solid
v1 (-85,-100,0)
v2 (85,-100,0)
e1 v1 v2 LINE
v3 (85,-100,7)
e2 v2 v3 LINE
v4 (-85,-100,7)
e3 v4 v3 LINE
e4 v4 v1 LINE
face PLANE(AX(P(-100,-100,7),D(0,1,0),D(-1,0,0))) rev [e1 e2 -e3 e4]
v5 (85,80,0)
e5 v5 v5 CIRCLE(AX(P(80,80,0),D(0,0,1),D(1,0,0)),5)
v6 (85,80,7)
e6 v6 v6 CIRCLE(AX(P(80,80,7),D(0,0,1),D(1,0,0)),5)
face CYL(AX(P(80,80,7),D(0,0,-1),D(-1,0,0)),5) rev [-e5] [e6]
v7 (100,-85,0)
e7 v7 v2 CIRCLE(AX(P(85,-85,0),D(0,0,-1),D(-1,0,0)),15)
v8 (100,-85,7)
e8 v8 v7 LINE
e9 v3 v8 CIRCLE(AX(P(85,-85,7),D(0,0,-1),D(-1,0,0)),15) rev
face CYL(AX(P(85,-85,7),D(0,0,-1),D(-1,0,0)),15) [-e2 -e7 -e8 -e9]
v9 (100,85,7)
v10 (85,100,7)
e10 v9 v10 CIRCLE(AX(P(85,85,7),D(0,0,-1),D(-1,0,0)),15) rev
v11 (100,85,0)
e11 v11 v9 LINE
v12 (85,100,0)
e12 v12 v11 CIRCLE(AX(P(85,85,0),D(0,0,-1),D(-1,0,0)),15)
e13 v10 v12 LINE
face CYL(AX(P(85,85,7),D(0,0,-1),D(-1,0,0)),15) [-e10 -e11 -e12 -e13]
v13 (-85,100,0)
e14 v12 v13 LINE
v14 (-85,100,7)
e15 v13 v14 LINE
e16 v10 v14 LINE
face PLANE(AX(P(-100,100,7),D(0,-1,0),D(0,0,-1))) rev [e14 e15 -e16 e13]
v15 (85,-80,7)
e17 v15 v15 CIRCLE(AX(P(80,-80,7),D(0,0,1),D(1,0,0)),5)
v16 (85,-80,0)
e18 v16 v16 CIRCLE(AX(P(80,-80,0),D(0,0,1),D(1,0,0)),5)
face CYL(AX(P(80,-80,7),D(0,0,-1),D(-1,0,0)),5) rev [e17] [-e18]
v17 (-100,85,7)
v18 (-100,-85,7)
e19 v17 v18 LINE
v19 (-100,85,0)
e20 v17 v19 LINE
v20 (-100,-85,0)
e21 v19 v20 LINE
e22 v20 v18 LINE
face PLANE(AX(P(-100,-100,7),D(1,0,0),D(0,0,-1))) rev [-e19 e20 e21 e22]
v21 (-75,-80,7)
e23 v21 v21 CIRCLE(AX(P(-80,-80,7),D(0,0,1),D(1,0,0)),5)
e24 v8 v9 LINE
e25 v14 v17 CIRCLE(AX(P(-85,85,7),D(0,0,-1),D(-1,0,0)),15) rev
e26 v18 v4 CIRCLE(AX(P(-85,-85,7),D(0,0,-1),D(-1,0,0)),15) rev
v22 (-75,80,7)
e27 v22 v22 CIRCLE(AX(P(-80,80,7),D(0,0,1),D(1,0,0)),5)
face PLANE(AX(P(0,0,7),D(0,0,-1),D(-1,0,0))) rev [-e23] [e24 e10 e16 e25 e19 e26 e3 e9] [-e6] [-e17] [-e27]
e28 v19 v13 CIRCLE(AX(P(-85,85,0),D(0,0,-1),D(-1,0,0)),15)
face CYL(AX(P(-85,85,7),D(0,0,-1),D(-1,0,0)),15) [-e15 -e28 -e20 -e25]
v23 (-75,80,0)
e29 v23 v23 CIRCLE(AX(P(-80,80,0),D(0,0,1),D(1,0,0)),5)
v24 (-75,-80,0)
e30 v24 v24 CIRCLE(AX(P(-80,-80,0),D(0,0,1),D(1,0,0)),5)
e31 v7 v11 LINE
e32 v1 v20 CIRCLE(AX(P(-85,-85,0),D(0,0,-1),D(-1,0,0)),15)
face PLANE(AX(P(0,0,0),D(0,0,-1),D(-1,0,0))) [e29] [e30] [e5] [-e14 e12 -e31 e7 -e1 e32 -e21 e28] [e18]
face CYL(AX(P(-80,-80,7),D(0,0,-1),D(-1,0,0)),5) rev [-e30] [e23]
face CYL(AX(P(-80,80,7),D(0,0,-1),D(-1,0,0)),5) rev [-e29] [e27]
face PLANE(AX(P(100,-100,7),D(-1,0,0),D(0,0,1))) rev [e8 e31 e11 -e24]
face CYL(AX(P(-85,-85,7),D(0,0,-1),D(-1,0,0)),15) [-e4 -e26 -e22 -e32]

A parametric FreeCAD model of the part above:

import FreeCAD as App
import Part
import Sketcher


def edges_at(feature, points):
    """Names of the edges that pass closest to the given points."""
    edges = feature.Shape.Edges
    near = lambda p: min(range(len(edges)), key=lambda i: edges[i].distToShape(Part.Vertex(*p))[0])
    return sorted({f"Edge{near(p) + 1}" for p in points})


def add_polygon(sketch, points):
    """Adds a closed chain of lines whose ends are joined by coincident constraints."""
    first, n = sketch.GeometryCount, len(points)
    for a, b in zip(points, points[1:] + points[:1]):
        sketch.addGeometry(Part.LineSegment(App.Vector(*a, 0), App.Vector(*b, 0)), False)
    for i in range(n):
        sketch.addConstraint(Sketcher.Constraint("Coincident", first + i, 2, first + (i + 1) % n, 1))

doc = App.newDocument("Part")
body = doc.addObject("PartDesign::Body", "Body")

# Sketch on XY plane
sketch1 = body.newObject("Sketcher::SketchObject", "Sketch")
sketch1.AttachmentSupport = (doc.getObject("XY_Plane"), [""])
sketch1.MapMode = "FlatFace"
add_polygon(sketch1, [(-100, 100), (-100, -100), (100, -100), (100, 100)])  # lines 0-3
sketch1.addGeometry(Part.Circle(App.Vector(-80, -80, 0), App.Vector(0, 0, 1), 5), False)  # 4
sketch1.addGeometry(Part.Circle(App.Vector(80, -80, 0), App.Vector(0, 0, 1), 5), False)  # 5
sketch1.addGeometry(Part.Circle(App.Vector(-80, 80, 0), App.Vector(0, 0, 1), 5), False)  # 6
sketch1.addGeometry(Part.Circle(App.Vector(80, 80, 0), App.Vector(0, 0, 1), 5), False)  # 7
sketch1.addConstraint(Sketcher.Constraint("Vertical", 0))
sketch1.addConstraint(Sketcher.Constraint("Horizontal", 1))
sketch1.addConstraint(Sketcher.Constraint("Vertical", 2))
sketch1.addConstraint(Sketcher.Constraint("Horizontal", 3))
sketch1.addConstraint(Sketcher.Constraint("Equal", 4, 5))
sketch1.addConstraint(Sketcher.Constraint("Equal", 5, 6))
sketch1.addConstraint(Sketcher.Constraint("Equal", 6, 7))
sketch1.addConstraint(Sketcher.Constraint("Symmetric", 5, 3, 6, 3, -1, 1))
sketch1.addConstraint(Sketcher.Constraint("Symmetric", 4, 3, 7, 3, -1, 1))
sketch1.addConstraint(Sketcher.Constraint("Symmetric", 0, 2, 2, 2, -1, 1))
sketch1.addConstraint(Sketcher.Constraint("Symmetric", 4, 3, 5, 3, -2))
sketch1.addConstraint(Sketcher.Constraint("Equal", 3, 0))
sketch1.addConstraint(Sketcher.Constraint("Diameter", 4, 10.0))
sketch1.addConstraint(Sketcher.Constraint("DistanceX", 1, 1, 1, 2, 200.0))
sketch1.addConstraint(Sketcher.Constraint("DistanceX", 4, 3, -1, 1, 80.0))
sketch1.addConstraint(Sketcher.Constraint("DistanceY", 4, 3, -1, 1, 80.0))
pad1 = body.newObject("PartDesign::Pad", "Pad")
pad1.Profile = sketch1
pad1.Length = 7
doc.recompute()

fillet = body.newObject("PartDesign::Fillet", "Fillet")
fillet.Base = (pad1, edges_at(pad1, [
    (-100, 100, 3.5),
    (100, 100, 3.5),
    (100, -100, 3.5),
    (-100, -100, 3.5),
]))
fillet.Radius = 15

doc.recompute()
